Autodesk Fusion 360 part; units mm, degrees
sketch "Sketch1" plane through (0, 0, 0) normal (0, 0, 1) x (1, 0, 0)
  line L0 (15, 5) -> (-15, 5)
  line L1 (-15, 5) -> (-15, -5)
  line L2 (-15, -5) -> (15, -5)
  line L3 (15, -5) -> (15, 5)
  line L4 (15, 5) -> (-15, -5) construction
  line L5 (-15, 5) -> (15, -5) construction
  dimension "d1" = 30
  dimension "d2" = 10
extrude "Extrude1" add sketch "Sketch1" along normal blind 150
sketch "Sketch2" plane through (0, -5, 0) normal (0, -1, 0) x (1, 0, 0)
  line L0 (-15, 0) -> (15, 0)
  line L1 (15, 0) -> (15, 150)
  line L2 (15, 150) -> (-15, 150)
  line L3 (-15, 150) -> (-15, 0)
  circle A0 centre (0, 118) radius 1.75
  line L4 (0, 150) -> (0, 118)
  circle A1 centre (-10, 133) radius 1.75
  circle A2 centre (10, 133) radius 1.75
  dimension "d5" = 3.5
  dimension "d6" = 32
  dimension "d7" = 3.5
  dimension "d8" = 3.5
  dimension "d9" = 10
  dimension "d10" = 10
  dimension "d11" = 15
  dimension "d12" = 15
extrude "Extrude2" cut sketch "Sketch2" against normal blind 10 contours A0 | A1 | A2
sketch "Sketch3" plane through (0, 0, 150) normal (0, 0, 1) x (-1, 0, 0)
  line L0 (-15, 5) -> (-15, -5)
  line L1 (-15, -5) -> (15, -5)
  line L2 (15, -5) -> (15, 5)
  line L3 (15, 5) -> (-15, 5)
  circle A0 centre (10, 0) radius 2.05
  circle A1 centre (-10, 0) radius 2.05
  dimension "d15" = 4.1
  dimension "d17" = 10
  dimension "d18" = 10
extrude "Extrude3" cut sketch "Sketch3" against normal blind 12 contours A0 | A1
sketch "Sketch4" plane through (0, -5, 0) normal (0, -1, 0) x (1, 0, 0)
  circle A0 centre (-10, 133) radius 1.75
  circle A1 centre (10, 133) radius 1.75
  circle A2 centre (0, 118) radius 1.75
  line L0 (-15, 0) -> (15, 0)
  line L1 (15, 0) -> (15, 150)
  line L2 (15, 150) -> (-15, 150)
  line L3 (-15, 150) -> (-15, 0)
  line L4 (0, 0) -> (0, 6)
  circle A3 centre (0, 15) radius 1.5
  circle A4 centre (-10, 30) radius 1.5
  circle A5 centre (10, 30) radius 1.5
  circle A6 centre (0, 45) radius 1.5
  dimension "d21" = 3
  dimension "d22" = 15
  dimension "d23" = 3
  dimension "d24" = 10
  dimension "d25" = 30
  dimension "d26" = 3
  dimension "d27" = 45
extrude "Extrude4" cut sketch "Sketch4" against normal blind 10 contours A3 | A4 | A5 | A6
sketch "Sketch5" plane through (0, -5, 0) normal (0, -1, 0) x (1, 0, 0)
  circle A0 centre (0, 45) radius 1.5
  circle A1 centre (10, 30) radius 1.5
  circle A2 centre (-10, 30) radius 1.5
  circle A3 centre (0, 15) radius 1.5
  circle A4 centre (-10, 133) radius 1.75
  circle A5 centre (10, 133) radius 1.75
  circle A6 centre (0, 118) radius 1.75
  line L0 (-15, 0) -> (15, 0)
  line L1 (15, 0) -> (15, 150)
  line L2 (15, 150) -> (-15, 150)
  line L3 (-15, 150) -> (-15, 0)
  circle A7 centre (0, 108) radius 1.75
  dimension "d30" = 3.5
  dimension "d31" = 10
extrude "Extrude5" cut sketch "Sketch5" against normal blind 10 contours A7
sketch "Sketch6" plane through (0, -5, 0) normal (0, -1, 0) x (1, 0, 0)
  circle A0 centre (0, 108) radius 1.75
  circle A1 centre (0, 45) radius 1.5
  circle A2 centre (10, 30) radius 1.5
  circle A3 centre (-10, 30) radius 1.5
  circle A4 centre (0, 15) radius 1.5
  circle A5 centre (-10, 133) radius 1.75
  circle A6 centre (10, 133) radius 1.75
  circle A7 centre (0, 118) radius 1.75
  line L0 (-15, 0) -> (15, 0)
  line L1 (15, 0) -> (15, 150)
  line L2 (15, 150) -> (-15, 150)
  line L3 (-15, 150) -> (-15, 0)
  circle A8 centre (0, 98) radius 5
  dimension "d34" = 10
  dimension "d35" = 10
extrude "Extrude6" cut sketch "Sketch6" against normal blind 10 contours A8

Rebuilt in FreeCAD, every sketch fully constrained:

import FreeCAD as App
import Part
import Sketcher

doc = App.newDocument("Part")
body = doc.addObject("PartDesign::Body", "Body")

sketch1 = body.newObject("Sketcher::SketchObject", "Sketch")
sketch1.AttachmentSupport = (doc.getObject("XY_Plane"), [""])
sketch1.MapMode = "FlatFace"
sketch1.addGeometry(Part.LineSegment(App.Vector(15, -5, 0), App.Vector(15, 5, 0)), False)
sketch1.addGeometry(Part.LineSegment(App.Vector(15, 5, 0), App.Vector(-15, 5, 0)), False)
sketch1.addGeometry(Part.LineSegment(App.Vector(-15, 5, 0), App.Vector(-15, -5, 0)), False)
sketch1.addGeometry(Part.LineSegment(App.Vector(-15, -5, 0), App.Vector(15, -5, 0)), False)
sketch1.addConstraint(Sketcher.Constraint("Coincident", 0, 2, 1, 1))
sketch1.addConstraint(Sketcher.Constraint("Coincident", 1, 2, 2, 1))
sketch1.addConstraint(Sketcher.Constraint("Coincident", 2, 2, 3, 1))
sketch1.addConstraint(Sketcher.Constraint("Coincident", 3, 2, 0, 1))
sketch1.addConstraint(Sketcher.Constraint("Vertical", 0))
sketch1.addConstraint(Sketcher.Constraint("Horizontal", 1))
sketch1.addConstraint(Sketcher.Constraint("Vertical", 2))
sketch1.addConstraint(Sketcher.Constraint("Horizontal", 3))
sketch1.addConstraint(Sketcher.Constraint("Symmetric", 0, 2, 2, 2, -1, 1))
sketch1.addConstraint(Sketcher.Constraint("DistanceX", 1, 2, 1, 1, 30.0))
sketch1.addConstraint(Sketcher.Constraint("DistanceY", 0, 1, 0, 2, 10.0))
pad1 = body.newObject("PartDesign::Pad", "Pad")
pad1.Profile = sketch1
pad1.Length = 150

sketch2 = body.newObject("Sketcher::SketchObject", "Sketch001")
sketch2.AttachmentSupport = (doc.getObject("XZ_Plane"), [""])
sketch2.MapMode = "FlatFace"
sketch2.AttachmentOffset = App.Placement(App.Vector(0, 0, 5), App.Rotation())
sketch2.addGeometry(Part.Circle(App.Vector(0, 118, 0), App.Vector(0, 0, 1), 1.8), False)
sketch2.addGeometry(Part.Circle(App.Vector(-10, 133, 0), App.Vector(0, 0, 1), 1.8), False)
sketch2.addGeometry(Part.Circle(App.Vector(10, 133, 0), App.Vector(0, 0, 1), 1.8), False)
sketch2.addConstraint(Sketcher.Constraint("Equal", 0, 1))
sketch2.addConstraint(Sketcher.Constraint("Equal", 1, 2))
sketch2.addConstraint(Sketcher.Constraint("Symmetric", 1, 3, 2, 3, -2))
sketch2.addConstraint(Sketcher.Constraint("PointOnObject", 0, 3, -2))
sketch2.addConstraint(Sketcher.Constraint("Diameter", 0, 3.5))
sketch2.addConstraint(Sketcher.Constraint("DistanceX", 1, 3, -1, 1, 10.0))
sketch2.addConstraint(Sketcher.Constraint("DistanceY", 0, 3, 1, 3, 15.0))
sketch2.addConstraint(Sketcher.Constraint("DistanceY", -1, 1, 0, 3, 118.0))
pocket1 = body.newObject("PartDesign::Pocket", "Pocket")
pocket1.Profile = sketch2
pocket1.Length = 10

sketch3 = body.newObject("Sketcher::SketchObject", "Sketch002")
sketch3.AttachmentSupport = (doc.getObject("XY_Plane"), [""])
sketch3.MapMode = "FlatFace"
sketch3.AttachmentOffset = App.Placement(App.Vector(0, 0, 150), App.Rotation())
sketch3.addGeometry(Part.Circle(App.Vector(-10, 0, 0), App.Vector(0, 0, 1), 2), False)
sketch3.addGeometry(Part.Circle(App.Vector(10, 0, 0), App.Vector(0, 0, 1), 2), False)
sketch3.addConstraint(Sketcher.Constraint("Equal", 0, 1))
sketch3.addConstraint(Sketcher.Constraint("Symmetric", 0, 3, 1, 3, -1, 1))
sketch3.addConstraint(Sketcher.Constraint("PointOnObject", 0, 3, -1))
sketch3.addConstraint(Sketcher.Constraint("Diameter", 0, 4.1))
sketch3.addConstraint(Sketcher.Constraint("DistanceX", 0, 3, -1, 1, 10.0))
pocket2 = body.newObject("PartDesign::Pocket", "Pocket001")
pocket2.Profile = sketch3
pocket2.Length = 12

sketch4 = body.newObject("Sketcher::SketchObject", "Sketch003")
sketch4.AttachmentSupport = (doc.getObject("XZ_Plane"), [""])
sketch4.MapMode = "FlatFace"
sketch4.AttachmentOffset = App.Placement(App.Vector(0, 0, 5), App.Rotation())
sketch4.addGeometry(Part.Circle(App.Vector(0, 15, 0), App.Vector(0, 0, 1), 1.5), False)
sketch4.addGeometry(Part.Circle(App.Vector(-10, 30, 0), App.Vector(0, 0, 1), 1.5), False)
sketch4.addGeometry(Part.Circle(App.Vector(10, 30, 0), App.Vector(0, 0, 1), 1.5), False)
sketch4.addGeometry(Part.Circle(App.Vector(0, 45, 0), App.Vector(0, 0, 1), 1.5), False)
sketch4.addConstraint(Sketcher.Constraint("Equal", 0, 1))
sketch4.addConstraint(Sketcher.Constraint("Equal", 1, 2))
sketch4.addConstraint(Sketcher.Constraint("Equal", 2, 3))
sketch4.addConstraint(Sketcher.Constraint("Symmetric", 1, 3, 2, 3, -2))
sketch4.addConstraint(Sketcher.Constraint("PointOnObject", 0, 3, -2))
sketch4.addConstraint(Sketcher.Constraint("PointOnObject", 3, 3, -2))
sketch4.addConstraint(Sketcher.Constraint("Diameter", 0, 3.0))
sketch4.addConstraint(Sketcher.Constraint("DistanceY", -1, 1, 0, 3, 15.0))
sketch4.addConstraint(Sketcher.Constraint("DistanceX", 1, 3, -1, 1, 10.0))
sketch4.addConstraint(Sketcher.Constraint("DistanceY", -1, 1, 1, 3, 30.0))
sketch4.addConstraint(Sketcher.Constraint("DistanceY", -1, 1, 3, 3, 45.0))
pocket3 = body.newObject("PartDesign::Pocket", "Pocket002")
pocket3.Profile = sketch4
pocket3.Length = 10

sketch5 = body.newObject("Sketcher::SketchObject", "Sketch004")
sketch5.AttachmentSupport = (doc.getObject("XZ_Plane"), [""])
sketch5.MapMode = "FlatFace"
sketch5.AttachmentOffset = App.Placement(App.Vector(0, 0, 5), App.Rotation())
sketch5.addGeometry(Part.Circle(App.Vector(0, 108, 0), App.Vector(0, 0, 1), 1.8), False)
sketch5.addConstraint(Sketcher.Constraint("PointOnObject", 0, 3, -2))
sketch5.addConstraint(Sketcher.Constraint("Diameter", 0, 3.5))
sketch5.addConstraint(Sketcher.Constraint("DistanceY", -1, 1, 0, 3, 108.0))
pocket4 = body.newObject("PartDesign::Pocket", "Pocket003")
pocket4.Profile = sketch5
pocket4.Length = 10

sketch6 = body.newObject("Sketcher::SketchObject", "Sketch005")
sketch6.AttachmentSupport = (doc.getObject("XZ_Plane"), [""])
sketch6.MapMode = "FlatFace"
sketch6.AttachmentOffset = App.Placement(App.Vector(0, 0, 5), App.Rotation())
sketch6.addGeometry(Part.Circle(App.Vector(0, 98, 0), App.Vector(0, 0, 1), 5), False)
sketch6.addConstraint(Sketcher.Constraint("PointOnObject", 0, 3, -2))
sketch6.addConstraint(Sketcher.Constraint("Diameter", 0, 10.0))
sketch6.addConstraint(Sketcher.Constraint("DistanceY", -1, 1, 0, 3, 98.0))
pocket5 = body.newObject("PartDesign::Pocket", "Pocket004")
pocket5.Profile = sketch6
pocket5.Length = 10

doc.recompute()
